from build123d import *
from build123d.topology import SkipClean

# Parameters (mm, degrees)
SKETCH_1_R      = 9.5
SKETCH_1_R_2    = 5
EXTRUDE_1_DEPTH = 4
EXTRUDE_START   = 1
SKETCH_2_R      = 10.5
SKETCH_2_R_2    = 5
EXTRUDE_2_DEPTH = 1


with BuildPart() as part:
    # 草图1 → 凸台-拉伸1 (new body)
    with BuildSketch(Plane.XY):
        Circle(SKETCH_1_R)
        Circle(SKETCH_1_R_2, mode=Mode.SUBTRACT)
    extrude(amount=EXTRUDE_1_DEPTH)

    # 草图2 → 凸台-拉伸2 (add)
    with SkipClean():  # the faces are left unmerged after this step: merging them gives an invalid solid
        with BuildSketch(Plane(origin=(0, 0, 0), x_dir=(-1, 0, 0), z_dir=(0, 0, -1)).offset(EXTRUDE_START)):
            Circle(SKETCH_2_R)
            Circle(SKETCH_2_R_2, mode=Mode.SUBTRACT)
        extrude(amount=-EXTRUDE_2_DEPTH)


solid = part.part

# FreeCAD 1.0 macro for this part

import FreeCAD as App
import Part
import Sketcher

V = App.Vector
Q = App.Units.Quantity

doc = App.newDocument("Part")
body = doc.addObject("PartDesign::Body", "Body")

# Sketch on XY plane
sketch1 = body.newObject("Sketcher::SketchObject", "Sketch")
sketch1.AttachmentSupport = (doc.getObject("XY_Plane"), [""])
sketch1.MapMode = "FlatFace"
sketch1.addGeometry([
    Part.Circle(V(0, 0, 0), V(0, 0, 1), 9.5),
    Part.Circle(V(0, 0, 0), V(0, 0, 1), 5),
], False)
sketch1.addConstraint([
    Sketcher.Constraint("Coincident", 0, 3, -1, 1),
    Sketcher.Constraint("Coincident", 1, 3, -1, 1),
    Sketcher.Constraint("Diameter", 0, Q("19 mm")),
    Sketcher.Constraint("Diameter", 1, Q("10 mm")),
])
pad1 = body.newObject("PartDesign::Pad", "Pad")
pad1.Profile = sketch1
pad1.Length = 4

# Sketch on XY plane
sketch2 = body.newObject("Sketcher::SketchObject", "Sketch001")
sketch2.AttachmentSupport = (doc.getObject("XY_Plane"), [""])
sketch2.MapMode = "FlatFace"
sketch2.AttachmentOffset = App.Placement(V(0, 0, -1), App.Rotation())
sketch2.addGeometry([
    Part.Circle(V(0, 0, 0), V(0, 0, 1), 10.5),
    Part.Circle(V(0, 0, 0), V(0, 0, 1), 5),
], False)
sketch2.addConstraint([
    Sketcher.Constraint("Coincident", 0, 3, -1, 1),
    Sketcher.Constraint("Coincident", 1, 3, -1, 1),
    Sketcher.Constraint("Diameter", 0, Q("21 mm")),
    Sketcher.Constraint("Diameter", 1, Q("10 mm")),
])
pad2 = body.newObject("PartDesign::Pad", "Pad001")
pad2.Profile = sketch2
pad2.Length = 1

doc.recompute()
